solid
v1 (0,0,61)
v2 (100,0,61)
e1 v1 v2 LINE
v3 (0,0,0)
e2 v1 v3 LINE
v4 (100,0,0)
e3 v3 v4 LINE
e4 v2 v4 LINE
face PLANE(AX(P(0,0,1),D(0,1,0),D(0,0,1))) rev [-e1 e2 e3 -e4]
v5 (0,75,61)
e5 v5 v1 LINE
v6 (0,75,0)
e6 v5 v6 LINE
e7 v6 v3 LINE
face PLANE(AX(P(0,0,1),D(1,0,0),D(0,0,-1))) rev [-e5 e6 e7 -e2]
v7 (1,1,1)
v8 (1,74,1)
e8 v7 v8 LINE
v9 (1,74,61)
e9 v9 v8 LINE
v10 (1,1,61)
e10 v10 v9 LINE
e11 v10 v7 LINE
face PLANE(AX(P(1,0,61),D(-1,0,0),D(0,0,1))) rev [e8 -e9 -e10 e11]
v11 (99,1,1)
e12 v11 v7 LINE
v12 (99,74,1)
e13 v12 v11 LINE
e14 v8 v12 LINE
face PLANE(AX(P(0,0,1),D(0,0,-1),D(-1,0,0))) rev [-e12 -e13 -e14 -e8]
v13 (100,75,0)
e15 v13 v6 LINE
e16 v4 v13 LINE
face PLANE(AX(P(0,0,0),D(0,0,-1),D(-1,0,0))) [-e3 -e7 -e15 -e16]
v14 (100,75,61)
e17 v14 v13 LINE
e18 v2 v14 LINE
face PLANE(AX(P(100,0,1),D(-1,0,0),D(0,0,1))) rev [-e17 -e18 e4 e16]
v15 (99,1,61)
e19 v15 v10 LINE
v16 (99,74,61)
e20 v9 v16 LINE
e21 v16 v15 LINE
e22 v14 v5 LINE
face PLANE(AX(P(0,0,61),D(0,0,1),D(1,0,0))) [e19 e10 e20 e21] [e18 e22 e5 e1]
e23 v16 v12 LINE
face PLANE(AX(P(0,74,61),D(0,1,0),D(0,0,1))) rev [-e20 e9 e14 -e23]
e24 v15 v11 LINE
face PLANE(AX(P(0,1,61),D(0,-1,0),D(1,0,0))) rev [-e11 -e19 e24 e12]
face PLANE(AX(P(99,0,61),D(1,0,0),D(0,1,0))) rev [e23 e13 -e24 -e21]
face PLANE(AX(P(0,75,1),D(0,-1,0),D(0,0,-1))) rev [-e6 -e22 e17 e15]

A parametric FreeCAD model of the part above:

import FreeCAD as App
import Part
import Sketcher
from FreeCAD import Vector
Q = App.Units.Quantity

doc = App.newDocument("Part")
body = doc.addObject("PartDesign::Body", "Body")

sketch1 = body.newObject("Sketcher::SketchObject", "Sketch")
sketch1.AttachmentSupport = (doc.getObject("XY_Plane"), [""])
sketch1.MapMode = "FlatFace"
sketch1.addGeometry([
    Part.LineSegment(Vector(0, 75, 0), Vector(0, 0, 0)),
    Part.LineSegment(Vector(0, 0, 0), Vector(100, 0, 0)),
    Part.LineSegment(Vector(100, 0, 0), Vector(100, 75, 0)),
    Part.LineSegment(Vector(100, 75, 0), Vector(0, 75, 0)),
], False)
sketch1.addConstraint([
    Sketcher.Constraint("Coincident", 0, 2, 1, 1),
    Sketcher.Constraint("Coincident", 1, 2, 2, 1),
    Sketcher.Constraint("Coincident", 2, 2, 3, 1),
    Sketcher.Constraint("Coincident", 3, 2, 0, 1),
    Sketcher.Constraint("Vertical", 0),
    Sketcher.Constraint("Horizontal", 1),
    Sketcher.Constraint("Vertical", 2),
    Sketcher.Constraint("Horizontal", 3),
    Sketcher.Constraint("Coincident", 0, 2, -1, 1),
    Sketcher.Constraint("DistanceX", 1, 1, 1, 2, Q("100 mm")),
    Sketcher.Constraint("DistanceY", 0, 2, 0, 1, Q("75 mm")),
])
pad1 = body.newObject("PartDesign::Pad", "Pad")
pad1.Profile = sketch1
pad1.Length = 1

sketch2 = body.newObject("Sketcher::SketchObject", "Sketch001")
sketch2.AttachmentSupport = (doc.getObject("XY_Plane"), [""])
sketch2.MapMode = "FlatFace"
sketch2.AttachmentOffset = App.Placement(Vector(0, 0, 1), App.Rotation())
sketch2.addGeometry([
    Part.LineSegment(Vector(100, 75, 0), Vector(0, 75, 0)),
    Part.LineSegment(Vector(0, 75, 0), Vector(0, 0, 0)),
    Part.LineSegment(Vector(0, 0, 0), Vector(100, 0, 0)),
    Part.LineSegment(Vector(100, 0, 0), Vector(100, 75, 0)),
    Part.LineSegment(Vector(99, 1, 0), Vector(1, 1, 0)),
    Part.LineSegment(Vector(1, 1, 0), Vector(1, 74, 0)),
    Part.LineSegment(Vector(1, 74, 0), Vector(99, 74, 0)),
    Part.LineSegment(Vector(99, 74, 0), Vector(99, 1, 0)),
], False)
sketch2.addConstraint([
    Sketcher.Constraint("Coincident", 0, 2, 1, 1),
    Sketcher.Constraint("Coincident", 1, 2, 2, 1),
    Sketcher.Constraint("Coincident", 2, 2, 3, 1),
    Sketcher.Constraint("Coincident", 3, 2, 0, 1),
    Sketcher.Constraint("Coincident", 4, 2, 5, 1),
    Sketcher.Constraint("Coincident", 5, 2, 6, 1),
    Sketcher.Constraint("Coincident", 6, 2, 7, 1),
    Sketcher.Constraint("Coincident", 7, 2, 4, 1),
    Sketcher.Constraint("Horizontal", 0),
    Sketcher.Constraint("Vertical", 1),
    Sketcher.Constraint("Horizontal", 2),
    Sketcher.Constraint("Vertical", 3),
    Sketcher.Constraint("Horizontal", 4),
    Sketcher.Constraint("Vertical", 5),
    Sketcher.Constraint("Horizontal", 6),
    Sketcher.Constraint("Vertical", 7),
    Sketcher.Constraint("Coincident", 1, 2, -1, 1),
    Sketcher.Constraint("DistanceX", 0, 2, 0, 1, Q("100 mm")),
    Sketcher.Constraint("DistanceX", 4, 2, 4, 1, Q("98 mm")),
    Sketcher.Constraint("DistanceY", 1, 2, 1, 1, Q("75 mm")),
    Sketcher.Constraint("DistanceY", 5, 1, 5, 2, Q("73 mm")),
    Sketcher.Constraint("DistanceX", -1, 1, 4, 2, Q("1 mm")),
    Sketcher.Constraint("DistanceY", -1, 1, 4, 2, Q("1 mm")),
])
pad2 = body.newObject("PartDesign::Pad", "Pad001")
pad2.Profile = sketch2
pad2.Length = 60

doc.recompute()
